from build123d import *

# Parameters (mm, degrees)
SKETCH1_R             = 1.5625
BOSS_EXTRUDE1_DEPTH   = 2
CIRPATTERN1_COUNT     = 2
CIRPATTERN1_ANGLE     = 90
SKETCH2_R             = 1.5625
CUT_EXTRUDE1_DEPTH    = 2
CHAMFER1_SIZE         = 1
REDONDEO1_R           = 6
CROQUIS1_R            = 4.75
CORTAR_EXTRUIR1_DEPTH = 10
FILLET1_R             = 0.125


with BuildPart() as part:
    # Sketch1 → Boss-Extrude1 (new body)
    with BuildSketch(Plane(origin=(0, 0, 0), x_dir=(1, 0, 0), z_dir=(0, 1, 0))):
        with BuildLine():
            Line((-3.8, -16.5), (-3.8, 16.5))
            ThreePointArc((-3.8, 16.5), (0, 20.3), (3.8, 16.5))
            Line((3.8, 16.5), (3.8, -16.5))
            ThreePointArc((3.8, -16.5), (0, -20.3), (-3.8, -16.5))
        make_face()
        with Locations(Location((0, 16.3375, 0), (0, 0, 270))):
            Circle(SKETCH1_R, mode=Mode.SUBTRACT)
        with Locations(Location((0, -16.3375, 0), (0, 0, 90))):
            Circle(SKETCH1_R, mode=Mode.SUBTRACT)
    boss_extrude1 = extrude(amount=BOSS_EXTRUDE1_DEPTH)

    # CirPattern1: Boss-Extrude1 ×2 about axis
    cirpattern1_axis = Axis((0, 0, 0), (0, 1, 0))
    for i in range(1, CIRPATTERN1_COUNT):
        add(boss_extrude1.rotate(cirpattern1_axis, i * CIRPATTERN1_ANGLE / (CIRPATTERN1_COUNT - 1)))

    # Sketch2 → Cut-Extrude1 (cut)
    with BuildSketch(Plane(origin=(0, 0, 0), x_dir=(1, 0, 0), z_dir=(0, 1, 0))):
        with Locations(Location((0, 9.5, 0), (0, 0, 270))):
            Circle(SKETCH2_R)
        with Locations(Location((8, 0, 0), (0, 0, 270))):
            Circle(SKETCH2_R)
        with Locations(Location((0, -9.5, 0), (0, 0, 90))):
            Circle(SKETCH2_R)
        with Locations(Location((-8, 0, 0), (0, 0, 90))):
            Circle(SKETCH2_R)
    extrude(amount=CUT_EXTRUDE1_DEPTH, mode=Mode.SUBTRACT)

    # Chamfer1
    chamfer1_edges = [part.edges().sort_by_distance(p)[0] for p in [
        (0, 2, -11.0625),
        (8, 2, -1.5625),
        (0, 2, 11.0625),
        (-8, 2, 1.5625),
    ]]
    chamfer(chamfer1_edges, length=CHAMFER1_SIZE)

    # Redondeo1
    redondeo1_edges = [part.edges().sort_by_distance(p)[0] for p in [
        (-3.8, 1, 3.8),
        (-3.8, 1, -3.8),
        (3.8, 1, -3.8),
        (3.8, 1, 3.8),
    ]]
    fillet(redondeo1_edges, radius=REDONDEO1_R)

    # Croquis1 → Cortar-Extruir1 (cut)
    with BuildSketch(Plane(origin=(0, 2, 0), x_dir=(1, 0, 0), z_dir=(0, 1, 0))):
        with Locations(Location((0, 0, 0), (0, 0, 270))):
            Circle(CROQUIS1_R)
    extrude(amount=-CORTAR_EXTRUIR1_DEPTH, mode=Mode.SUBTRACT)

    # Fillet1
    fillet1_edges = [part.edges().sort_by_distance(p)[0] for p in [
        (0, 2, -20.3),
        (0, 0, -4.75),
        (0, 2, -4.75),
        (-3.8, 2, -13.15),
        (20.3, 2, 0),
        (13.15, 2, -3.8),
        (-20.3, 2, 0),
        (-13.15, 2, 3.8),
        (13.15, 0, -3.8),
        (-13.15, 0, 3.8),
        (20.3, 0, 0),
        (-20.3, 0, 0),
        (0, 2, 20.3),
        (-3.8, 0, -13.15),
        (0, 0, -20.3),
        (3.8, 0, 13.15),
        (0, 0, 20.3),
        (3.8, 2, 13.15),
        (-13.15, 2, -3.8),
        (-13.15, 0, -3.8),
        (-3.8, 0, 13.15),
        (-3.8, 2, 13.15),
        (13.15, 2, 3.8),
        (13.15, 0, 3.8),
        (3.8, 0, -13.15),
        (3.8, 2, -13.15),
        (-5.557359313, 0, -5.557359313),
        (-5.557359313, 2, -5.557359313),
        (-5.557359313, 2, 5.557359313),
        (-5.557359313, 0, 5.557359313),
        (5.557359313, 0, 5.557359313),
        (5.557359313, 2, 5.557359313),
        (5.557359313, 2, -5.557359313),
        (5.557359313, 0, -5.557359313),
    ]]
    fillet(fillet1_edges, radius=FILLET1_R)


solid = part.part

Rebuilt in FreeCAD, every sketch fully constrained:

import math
import FreeCAD as App
import Part
import Sketcher
Q = App.Units.Quantity


def edges_at(feature, points):
    """Names of the edges that pass closest to the given points."""
    edges = feature.Shape.Edges
    near = lambda p: min(range(len(edges)), key=lambda i: edges[i].distToShape(Part.Vertex(*p))[0])
    return sorted({f"Edge{near(p) + 1}" for p in points})

doc = App.newDocument("Part")
body = doc.addObject("PartDesign::Body", "Body")

sketch1 = body.newObject("Sketcher::SketchObject", "Sketch")
sketch1.AttachmentSupport = (doc.getObject("XZ_Plane"), [""])
sketch1.MapMode = "FlatFace"
sketch1.addGeometry([
    Part.LineSegment(App.Vector(-3.8, -16.5, 0), App.Vector(-3.8, 16.5, 0)),
    Part.ArcOfCircle(Part.Circle(App.Vector(0, 16.5, 0), App.Vector(0, 0, 1), 3.8), math.radians(0), math.radians(180)),
    Part.LineSegment(App.Vector(3.8, 16.5, 0), App.Vector(3.8, -16.5, 0)),
    Part.ArcOfCircle(Part.Circle(App.Vector(0, -16.5, 0), App.Vector(0, 0, 1), 3.8), math.radians(180), math.radians(360)),
    Part.Circle(App.Vector(0, 16.3, 0), App.Vector(0, 0, 1), 1.6),
    Part.Circle(App.Vector(0, -16.3, 0), App.Vector(0, 0, 1), 1.6),
], False)
sketch1.addConstraint([
    Sketcher.Constraint("Tangent", 0, 2, 1, 2),
    Sketcher.Constraint("Tangent", 1, 1, 2, 1),
    Sketcher.Constraint("Tangent", 2, 2, 3, 2),
    Sketcher.Constraint("Tangent", 3, 1, 0, 1),
    Sketcher.Constraint("Vertical", 0),
    Sketcher.Constraint("Vertical", 2),
    Sketcher.Constraint("Equal", 4, 5),
    Sketcher.Constraint("Symmetric", 1, 3, 3, 3, -1, 1),
    Sketcher.Constraint("Symmetric", 4, 3, 5, 3, -1, 1),
    Sketcher.Constraint("PointOnObject", 4, 3, -2),
    Sketcher.Constraint("Radius", 1, Q("3.8 mm")),
    Sketcher.Constraint("DistanceY", 0, 1, 0, 2, Q("33 mm")),
    Sketcher.Constraint("Diameter", 4, Q("3.125 mm")),
    Sketcher.Constraint("DistanceY", 5, 3, 4, 3, Q("32.675 mm")),
])
pad1 = body.newObject("PartDesign::Pad", "Pad")
pad1.Profile = sketch1
pad1.Length = 2
pad1.Reversed = True
doc.recompute()

polarpattern = body.newObject("PartDesign::PolarPattern", "PolarPattern")
polarpattern.Originals = [pad1]
polarpattern.Axis = (doc.getObject("Y_Axis"), [""])
polarpattern.Angle = 90
polarpattern.Occurrences = 2
body.Tip = polarpattern

sketch2 = body.newObject("Sketcher::SketchObject", "Sketch001")
sketch2.AttachmentSupport = (doc.getObject("XZ_Plane"), [""])
sketch2.MapMode = "FlatFace"
sketch2.addGeometry([
    Part.Circle(App.Vector(0, -9.5, 0), App.Vector(0, 0, 1), 1.6),
    Part.Circle(App.Vector(8, 0, 0), App.Vector(0, 0, 1), 1.6),
    Part.Circle(App.Vector(0, 9.5, 0), App.Vector(0, 0, 1), 1.6),
    Part.Circle(App.Vector(-8, 0, 0), App.Vector(0, 0, 1), 1.6),
], False)
sketch2.addConstraint([
    Sketcher.Constraint("Equal", 0, 1),
    Sketcher.Constraint("Equal", 1, 2),
    Sketcher.Constraint("Equal", 2, 3),
    Sketcher.Constraint("Symmetric", 0, 3, 2, 3, -1, 1),
    Sketcher.Constraint("Symmetric", 1, 3, 3, 3, -1, 1),
    Sketcher.Constraint("PointOnObject", 0, 3, -2),
    Sketcher.Constraint("PointOnObject", 1, 3, -1),
    Sketcher.Constraint("Diameter", 0, Q("3.125 mm")),
    Sketcher.Constraint("DistanceX", -1, 1, 1, 3, Q("8 mm")),
    Sketcher.Constraint("DistanceY", 0, 3, 2, 3, Q("19 mm")),
])
pocket1 = body.newObject("PartDesign::Pocket", "Pocket")
pocket1.Profile = sketch2
pocket1.Length = 2
doc.recompute()

chamfer = body.newObject("PartDesign::Chamfer", "Chamfer")
chamfer.Base = (pocket1, edges_at(pocket1, [
    (0, 2, -11.062),
    (8, 2, -1.562),
    (0, 2, 11.062),
    (-8, 2, 1.562),
]))
chamfer.Size = 1
doc.recompute()

fillet = body.newObject("PartDesign::Fillet", "Fillet")
fillet.Base = (chamfer, edges_at(chamfer, [
    (-3.8, 1, 3.8),
    (-3.8, 1, -3.8),
    (3.8, 1, -3.8),
    (3.8, 1, 3.8),
]))
fillet.Radius = 6

sketch3 = body.newObject("Sketcher::SketchObject", "Sketch002")
sketch3.AttachmentSupport = (doc.getObject("XZ_Plane"), [""])
sketch3.MapMode = "FlatFace"
sketch3.AttachmentOffset = App.Placement(App.Vector(0, 0, -2), App.Rotation())
sketch3.addGeometry(Part.Circle(App.Vector(0, 0, 0), App.Vector(0, 0, 1), 4.8), False)
sketch3.addConstraint([
    Sketcher.Constraint("Coincident", 0, 3, -1, 1),
    Sketcher.Constraint("Diameter", 0, Q("9.5 mm")),
])
pocket2 = body.newObject("PartDesign::Pocket", "Pocket001")
pocket2.Profile = sketch3
pocket2.Length = 10
pocket2.Reversed = True
doc.recompute()

fillet2 = body.newObject("PartDesign::Fillet", "Fillet001")
fillet2.Base = (pocket2, edges_at(pocket2, [
    (0, 2, -20.3),
    (0, 0, -4.75),
    (0, 2, -4.75),
    (-3.8, 2, -13.15),
    (20.3, 2, 0),
    (13.15, 2, -3.8),
    (-20.3, 2, 0),
    (-13.15, 2, 3.8),
    (13.15, 0, -3.8),
    (-13.15, 0, 3.8),
    (20.3, 0, 0),
    (-20.3, 0, 0),
    (0, 2, 20.3),
    (-3.8, 0, -13.15),
    (0, 0, -20.3),
    (3.8, 0, 13.15),
    (0, 0, 20.3),
    (3.8, 2, 13.15),
    (-13.15, 2, -3.8),
    (-13.15, 0, -3.8),
    (-3.8, 0, 13.15),
    (-3.8, 2, 13.15),
    (13.15, 2, 3.8),
    (13.15, 0, 3.8),
    (3.8, 0, -13.15),
    (3.8, 2, -13.15),
    (-5.557, 0, -5.557),
    (-5.557, 2, -5.557),
    (-5.557, 2, 5.557),
    (-5.557, 0, 5.557),
    (5.557, 0, 5.557),
    (5.557, 2, 5.557),
    (5.557, 2, -5.557),
    (5.557, 0, -5.557),
]))
fillet2.Radius = 0.125

doc.recompute()
